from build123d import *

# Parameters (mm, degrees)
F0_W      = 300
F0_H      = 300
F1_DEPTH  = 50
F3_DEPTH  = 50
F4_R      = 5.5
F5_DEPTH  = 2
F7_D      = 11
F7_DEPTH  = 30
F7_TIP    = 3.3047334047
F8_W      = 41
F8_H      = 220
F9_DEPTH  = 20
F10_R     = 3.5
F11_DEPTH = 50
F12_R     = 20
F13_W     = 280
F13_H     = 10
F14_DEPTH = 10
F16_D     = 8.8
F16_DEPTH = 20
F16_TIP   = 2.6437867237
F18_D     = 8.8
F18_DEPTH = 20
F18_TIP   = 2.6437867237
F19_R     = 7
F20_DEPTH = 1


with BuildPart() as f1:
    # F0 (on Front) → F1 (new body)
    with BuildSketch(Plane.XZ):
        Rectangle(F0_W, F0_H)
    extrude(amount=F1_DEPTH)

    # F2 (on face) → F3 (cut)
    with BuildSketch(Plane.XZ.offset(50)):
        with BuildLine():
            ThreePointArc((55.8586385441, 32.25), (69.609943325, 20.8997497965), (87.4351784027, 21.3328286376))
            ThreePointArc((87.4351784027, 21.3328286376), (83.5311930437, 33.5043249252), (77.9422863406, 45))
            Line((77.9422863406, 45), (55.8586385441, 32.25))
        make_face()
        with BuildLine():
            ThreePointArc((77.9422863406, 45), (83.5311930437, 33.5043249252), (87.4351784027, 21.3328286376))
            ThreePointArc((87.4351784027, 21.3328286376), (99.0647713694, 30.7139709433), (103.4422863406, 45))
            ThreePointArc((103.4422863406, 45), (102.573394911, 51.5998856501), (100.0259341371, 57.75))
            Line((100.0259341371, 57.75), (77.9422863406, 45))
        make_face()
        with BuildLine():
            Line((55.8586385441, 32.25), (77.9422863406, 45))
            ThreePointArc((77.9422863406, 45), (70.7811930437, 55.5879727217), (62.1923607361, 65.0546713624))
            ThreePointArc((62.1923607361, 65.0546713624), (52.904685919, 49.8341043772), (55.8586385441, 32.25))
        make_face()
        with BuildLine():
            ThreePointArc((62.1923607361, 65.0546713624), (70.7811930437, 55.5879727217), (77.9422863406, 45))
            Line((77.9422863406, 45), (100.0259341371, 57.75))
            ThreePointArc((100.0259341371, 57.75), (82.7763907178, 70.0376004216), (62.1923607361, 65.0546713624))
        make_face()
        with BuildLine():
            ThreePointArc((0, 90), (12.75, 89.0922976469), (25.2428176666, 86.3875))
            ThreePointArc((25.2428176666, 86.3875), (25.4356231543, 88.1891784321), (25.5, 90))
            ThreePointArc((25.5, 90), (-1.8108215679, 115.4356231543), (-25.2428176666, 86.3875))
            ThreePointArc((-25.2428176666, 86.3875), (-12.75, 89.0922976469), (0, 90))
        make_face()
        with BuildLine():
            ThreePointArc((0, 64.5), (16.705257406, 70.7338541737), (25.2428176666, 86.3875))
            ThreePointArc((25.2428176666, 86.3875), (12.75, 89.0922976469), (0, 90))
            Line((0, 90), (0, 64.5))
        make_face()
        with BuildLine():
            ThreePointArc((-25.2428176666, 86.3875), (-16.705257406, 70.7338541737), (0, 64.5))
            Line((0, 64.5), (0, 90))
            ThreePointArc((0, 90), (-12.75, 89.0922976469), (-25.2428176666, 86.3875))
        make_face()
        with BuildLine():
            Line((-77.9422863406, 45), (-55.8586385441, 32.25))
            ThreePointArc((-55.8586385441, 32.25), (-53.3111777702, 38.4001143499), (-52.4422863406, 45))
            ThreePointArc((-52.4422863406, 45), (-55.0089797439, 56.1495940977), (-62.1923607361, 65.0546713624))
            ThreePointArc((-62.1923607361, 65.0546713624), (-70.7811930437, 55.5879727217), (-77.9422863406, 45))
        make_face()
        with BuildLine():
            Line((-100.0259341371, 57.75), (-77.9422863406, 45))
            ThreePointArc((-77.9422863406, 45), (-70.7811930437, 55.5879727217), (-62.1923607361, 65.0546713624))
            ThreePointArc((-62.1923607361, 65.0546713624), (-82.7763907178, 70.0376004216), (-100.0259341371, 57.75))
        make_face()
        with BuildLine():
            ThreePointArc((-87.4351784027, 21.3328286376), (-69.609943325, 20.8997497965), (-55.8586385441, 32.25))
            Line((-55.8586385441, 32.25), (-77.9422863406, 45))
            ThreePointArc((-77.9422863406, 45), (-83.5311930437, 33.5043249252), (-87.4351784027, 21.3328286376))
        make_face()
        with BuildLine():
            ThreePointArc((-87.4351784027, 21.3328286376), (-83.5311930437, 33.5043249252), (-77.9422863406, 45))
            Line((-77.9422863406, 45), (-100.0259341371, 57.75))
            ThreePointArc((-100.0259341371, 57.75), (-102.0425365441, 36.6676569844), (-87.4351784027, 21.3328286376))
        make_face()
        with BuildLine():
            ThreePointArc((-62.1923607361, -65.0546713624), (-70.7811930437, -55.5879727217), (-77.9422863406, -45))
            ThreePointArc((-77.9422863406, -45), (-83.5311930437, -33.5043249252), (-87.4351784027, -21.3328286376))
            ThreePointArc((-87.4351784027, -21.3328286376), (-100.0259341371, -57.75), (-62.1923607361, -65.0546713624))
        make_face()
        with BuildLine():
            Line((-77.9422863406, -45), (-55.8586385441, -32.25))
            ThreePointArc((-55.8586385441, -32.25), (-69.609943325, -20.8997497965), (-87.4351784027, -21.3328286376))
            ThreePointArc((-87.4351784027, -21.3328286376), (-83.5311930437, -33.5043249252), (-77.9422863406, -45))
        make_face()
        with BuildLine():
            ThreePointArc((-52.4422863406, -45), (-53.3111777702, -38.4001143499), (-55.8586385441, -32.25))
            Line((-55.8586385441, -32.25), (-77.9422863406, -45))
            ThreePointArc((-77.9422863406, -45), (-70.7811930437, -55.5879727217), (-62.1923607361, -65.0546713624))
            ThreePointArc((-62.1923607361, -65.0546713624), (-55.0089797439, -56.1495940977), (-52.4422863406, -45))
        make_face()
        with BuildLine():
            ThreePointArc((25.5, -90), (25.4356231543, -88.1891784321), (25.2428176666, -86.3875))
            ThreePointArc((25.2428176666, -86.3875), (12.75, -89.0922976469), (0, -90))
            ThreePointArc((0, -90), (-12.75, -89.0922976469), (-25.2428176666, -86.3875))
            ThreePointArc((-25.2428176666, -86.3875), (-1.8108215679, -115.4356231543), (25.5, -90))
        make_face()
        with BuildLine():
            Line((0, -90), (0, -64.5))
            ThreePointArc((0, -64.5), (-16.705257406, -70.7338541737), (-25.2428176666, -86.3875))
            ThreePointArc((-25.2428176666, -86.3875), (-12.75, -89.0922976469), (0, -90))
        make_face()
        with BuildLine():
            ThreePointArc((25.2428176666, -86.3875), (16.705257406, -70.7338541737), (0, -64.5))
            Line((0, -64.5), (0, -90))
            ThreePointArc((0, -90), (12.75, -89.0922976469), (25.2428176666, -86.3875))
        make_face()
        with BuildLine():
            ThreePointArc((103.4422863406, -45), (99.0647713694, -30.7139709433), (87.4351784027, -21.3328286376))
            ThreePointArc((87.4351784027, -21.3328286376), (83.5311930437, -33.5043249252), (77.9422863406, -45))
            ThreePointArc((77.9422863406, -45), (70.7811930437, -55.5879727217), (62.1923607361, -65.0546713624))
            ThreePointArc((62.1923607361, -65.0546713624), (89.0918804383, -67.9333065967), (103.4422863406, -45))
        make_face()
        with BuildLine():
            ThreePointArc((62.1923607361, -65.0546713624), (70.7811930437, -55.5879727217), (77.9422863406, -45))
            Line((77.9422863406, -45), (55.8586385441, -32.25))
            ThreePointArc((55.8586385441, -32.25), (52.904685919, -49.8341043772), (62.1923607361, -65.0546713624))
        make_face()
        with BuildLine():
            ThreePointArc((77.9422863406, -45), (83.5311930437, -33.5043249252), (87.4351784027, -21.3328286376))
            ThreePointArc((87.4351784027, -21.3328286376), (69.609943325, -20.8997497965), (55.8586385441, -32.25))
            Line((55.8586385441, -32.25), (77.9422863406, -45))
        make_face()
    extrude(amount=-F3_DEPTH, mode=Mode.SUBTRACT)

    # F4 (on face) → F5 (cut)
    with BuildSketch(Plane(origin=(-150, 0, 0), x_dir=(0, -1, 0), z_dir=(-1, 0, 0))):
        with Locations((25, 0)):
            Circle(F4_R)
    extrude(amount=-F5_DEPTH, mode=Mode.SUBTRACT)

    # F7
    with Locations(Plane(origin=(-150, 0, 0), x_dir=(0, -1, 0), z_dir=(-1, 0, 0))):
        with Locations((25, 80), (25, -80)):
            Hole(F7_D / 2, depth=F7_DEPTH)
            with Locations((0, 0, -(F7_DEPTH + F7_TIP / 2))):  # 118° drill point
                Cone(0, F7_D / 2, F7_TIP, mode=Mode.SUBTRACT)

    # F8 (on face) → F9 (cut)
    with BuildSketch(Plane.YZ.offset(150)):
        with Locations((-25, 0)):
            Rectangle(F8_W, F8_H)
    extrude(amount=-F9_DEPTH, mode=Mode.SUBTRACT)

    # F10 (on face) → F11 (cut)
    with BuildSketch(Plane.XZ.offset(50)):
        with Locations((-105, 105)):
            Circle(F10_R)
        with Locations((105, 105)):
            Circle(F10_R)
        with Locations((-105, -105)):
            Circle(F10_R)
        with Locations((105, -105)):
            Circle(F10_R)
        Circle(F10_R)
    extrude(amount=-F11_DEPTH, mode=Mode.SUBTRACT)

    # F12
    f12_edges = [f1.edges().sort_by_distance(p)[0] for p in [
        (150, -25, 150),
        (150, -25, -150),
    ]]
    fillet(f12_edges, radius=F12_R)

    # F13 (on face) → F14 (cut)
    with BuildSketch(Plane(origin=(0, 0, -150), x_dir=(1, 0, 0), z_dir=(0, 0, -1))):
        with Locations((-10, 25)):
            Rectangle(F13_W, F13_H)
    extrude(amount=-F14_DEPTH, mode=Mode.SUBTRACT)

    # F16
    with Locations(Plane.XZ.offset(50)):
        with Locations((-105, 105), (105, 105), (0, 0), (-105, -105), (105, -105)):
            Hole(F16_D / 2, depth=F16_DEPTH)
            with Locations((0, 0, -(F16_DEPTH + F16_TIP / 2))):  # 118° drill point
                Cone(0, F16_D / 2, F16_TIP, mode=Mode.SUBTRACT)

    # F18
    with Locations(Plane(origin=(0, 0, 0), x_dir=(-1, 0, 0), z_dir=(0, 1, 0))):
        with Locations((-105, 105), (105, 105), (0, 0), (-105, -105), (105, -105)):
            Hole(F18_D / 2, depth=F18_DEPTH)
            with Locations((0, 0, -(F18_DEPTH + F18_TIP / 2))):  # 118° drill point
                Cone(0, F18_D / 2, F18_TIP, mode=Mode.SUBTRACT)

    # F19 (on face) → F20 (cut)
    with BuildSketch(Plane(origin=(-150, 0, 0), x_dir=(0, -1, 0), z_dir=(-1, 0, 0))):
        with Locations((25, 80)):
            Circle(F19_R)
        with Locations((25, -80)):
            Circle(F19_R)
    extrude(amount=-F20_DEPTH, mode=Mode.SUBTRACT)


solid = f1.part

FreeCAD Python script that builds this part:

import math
import FreeCAD as App
import Part
import Sketcher

V = App.Vector


def edges_at(feature, points):
    """Names of the edges that pass closest to the given points."""
    edges = feature.Shape.Edges
    near = lambda p: min(range(len(edges)), key=lambda i: edges[i].distToShape(Part.Vertex(*p))[0])
    return sorted({f"Edge{near(p) + 1}" for p in points})

doc = App.newDocument("Part")
body = doc.addObject("PartDesign::Body", "Body")

# Sketch on XZ plane
sketch1 = body.newObject("Sketcher::SketchObject", "Sketch")
sketch1.AttachmentSupport = (doc.getObject("XZ_Plane"), [""])
sketch1.MapMode = "FlatFace"
sketch1.addGeometry([
    Part.LineSegment(V(-150, 150, 0), V(-150, -150, 0)),
    Part.LineSegment(V(-150, -150, 0), V(150, -150, 0)),
    Part.LineSegment(V(150, -150, 0), V(150, 150, 0)),
    Part.LineSegment(V(150, 150, 0), V(-150, 150, 0)),
], False)
sketch1.addConstraint([
    Sketcher.Constraint("Coincident", 0, 2, 1, 1),
    Sketcher.Constraint("Coincident", 1, 2, 2, 1),
    Sketcher.Constraint("Coincident", 2, 2, 3, 1),
    Sketcher.Constraint("Coincident", 3, 2, 0, 1),
    Sketcher.Constraint("Vertical", 0),
    Sketcher.Constraint("Horizontal", 1),
    Sketcher.Constraint("Vertical", 2),
    Sketcher.Constraint("Horizontal", 3),
    Sketcher.Constraint("Symmetric", 0, 2, 2, 2, -1, 1),
    Sketcher.Constraint("Equal", 3, 0),
    Sketcher.Constraint("DistanceX", 1, 1, 1, 2, 300.0),
])
pad1 = body.newObject("PartDesign::Pad", "Pad")
pad1.Profile = sketch1
pad1.Length = 50

# Sketch on XZ plane
sketch2 = body.newObject("Sketcher::SketchObject", "Sketch001")
sketch2.AttachmentSupport = (doc.getObject("XZ_Plane"), [""])
sketch2.MapMode = "FlatFace"
sketch2.AttachmentOffset = App.Placement(V(0, 0, 50), App.Rotation())
sketch2.addGeometry([
    Part.ArcOfCircle(Part.Circle(V(77.9, 45, 0), V(0, 0, 1), 25.5), math.radians(-150), math.radians(-68)),  # 0
    Part.ArcOfCircle(Part.Circle(V(77.9, 45, 0), V(0, 0, 1), 25.5), math.radians(-68), math.radians(0)),  # 1
    Part.ArcOfCircle(Part.Circle(V(77.9, 45, 0), V(0, 0, 1), 25.5), math.radians(0), math.radians(30)),  # 2
    Part.ArcOfCircle(Part.Circle(V(77.9, 45, 0), V(0, 0, 1), 25.5), math.radians(30), math.radians(128)),  # 3
    Part.ArcOfCircle(Part.Circle(V(77.9, 45, 0), V(0, 0, 1), 25.5), math.radians(128), math.radians(210)),  # 4
    Part.ArcOfCircle(Part.Circle(V(0, 90, 0), V(0, 0, 1), 25.5), math.radians(-8.14), math.radians(0)),  # 5
    Part.ArcOfCircle(Part.Circle(V(0, 90, 0), V(0, 0, 1), 25.5), math.radians(0), math.radians(188)),  # 6
    Part.ArcOfCircle(Part.Circle(V(0, 90, 0), V(0, 0, 1), 25.5), math.radians(-172), math.radians(-90)),  # 7
    Part.ArcOfCircle(Part.Circle(V(0, 90, 0), V(0, 0, 1), 25.5), math.radians(-90), math.radians(-8)),  # 8
    Part.ArcOfCircle(Part.Circle(V(-77.9, 45, 0), V(0, 0, 1), 25.5), math.radians(-30), math.radians(0)),  # 9
    Part.ArcOfCircle(Part.Circle(V(-77.9, 45, 0), V(0, 0, 1), 25.5), math.radians(0), math.radians(52)),  # 10
    Part.ArcOfCircle(Part.Circle(V(-77.9, 45, 0), V(0, 0, 1), 25.5), math.radians(52), math.radians(150)),  # 11
    Part.ArcOfCircle(Part.Circle(V(-77.9, 45, 0), V(0, 0, 1), 25.5), math.radians(150), math.radians(248)),  # 12
    Part.ArcOfCircle(Part.Circle(V(-77.9, 45, 0), V(0, 0, 1), 25.5), math.radians(-112), math.radians(-30)),  # 13
    Part.ArcOfCircle(Part.Circle(V(-77.9, -45, 0), V(0, 0, 1), 25.5), math.radians(30), math.radians(112)),  # 14
    Part.ArcOfCircle(Part.Circle(V(-77.9, -45, 0), V(0, 0, 1), 25.5), math.radians(112), math.radians(308)),  # 15
    Part.ArcOfCircle(Part.Circle(V(-77.9, -45, 0), V(0, 0, 1), 25.5), math.radians(-52), math.radians(0)),  # 16
    Part.ArcOfCircle(Part.Circle(V(-77.9, -45, 0), V(0, 0, 1), 25.5), math.radians(0), math.radians(30)),  # 17
    Part.ArcOfCircle(Part.Circle(V(0, -90, 0), V(0, 0, 1), 25.5), math.radians(0), math.radians(8.14)),  # 18
    Part.ArcOfCircle(Part.Circle(V(0, -90, 0), V(0, 0, 1), 25.5), math.radians(8), math.radians(90)),  # 19
    Part.ArcOfCircle(Part.Circle(V(0, -90, 0), V(0, 0, 1), 25.5), math.radians(90), math.radians(172)),  # 20
    Part.ArcOfCircle(Part.Circle(V(0, -90, 0), V(0, 0, 1), 25.5), math.radians(172), math.radians(360)),  # 21
    Part.ArcOfCircle(Part.Circle(V(77.9, -45, 0), V(0, 0, 1), 25.5), math.radians(0), math.radians(68)),  # 22
    Part.ArcOfCircle(Part.Circle(V(77.9, -45, 0), V(0, 0, 1), 25.5), math.radians(68), math.radians(150)),  # 23
    Part.ArcOfCircle(Part.Circle(V(77.9, -45, 0), V(0, 0, 1), 25.5), math.radians(150), math.radians(232)),  # 24
    Part.ArcOfCircle(Part.Circle(V(77.9, -45, 0), V(0, 0, 1), 25.5), math.radians(-128), math.radians(0)),  # 25
], False)
sketch2.addConstraint([
    Sketcher.Constraint("Tangent", 0, 2, 1, 1),
    Sketcher.Constraint("Tangent", 1, 2, 2, 1),
    Sketcher.Constraint("Tangent", 2, 2, 3, 1),
    Sketcher.Constraint("Tangent", 3, 2, 4, 1),
    Sketcher.Constraint("Tangent", 4, 2, 0, 1),
    Sketcher.Constraint("Tangent", 5, 2, 6, 1),
    Sketcher.Constraint("Tangent", 6, 2, 7, 1),
    Sketcher.Constraint("Tangent", 7, 2, 8, 1),
    Sketcher.Constraint("Tangent", 8, 2, 5, 1),
    Sketcher.Constraint("Tangent", 9, 2, 10, 1),
    Sketcher.Constraint("Tangent", 10, 2, 11, 1),
    Sketcher.Constraint("Tangent", 11, 2, 12, 1),
    Sketcher.Constraint("Tangent", 12, 2, 13, 1),
    Sketcher.Constraint("Tangent", 13, 2, 9, 1),
    Sketcher.Constraint("Tangent", 14, 2, 15, 1),
    Sketcher.Constraint("Tangent", 15, 2, 16, 1),
    Sketcher.Constraint("Tangent", 16, 2, 17, 1),
    Sketcher.Constraint("Tangent", 17, 2, 14, 1),
    Sketcher.Constraint("Tangent", 18, 2, 19, 1),
    Sketcher.Constraint("Tangent", 19, 2, 20, 1),
    Sketcher.Constraint("Tangent", 20, 2, 21, 1),
    Sketcher.Constraint("Tangent", 21, 2, 18, 1),
    Sketcher.Constraint("Tangent", 22, 2, 23, 1),
    Sketcher.Constraint("Tangent", 23, 2, 24, 1),
    Sketcher.Constraint("Tangent", 24, 2, 25, 1),
    Sketcher.Constraint("Tangent", 25, 2, 22, 1),
    Sketcher.Constraint("Coincident", 2, 3, 0, 3),
    Sketcher.Constraint("Coincident", 11, 3, 9, 3),
    Sketcher.Constraint("Equal", 4, 5),
    Sketcher.Constraint("Equal", 5, 6),
    Sketcher.Constraint("Equal", 8, 9),
    Sketcher.Constraint("Equal", 13, 14),
    Sketcher.Constraint("Equal", 14, 15),
    Sketcher.Constraint("Equal", 17, 18),
    Sketcher.Constraint("Equal", 18, 19),
    Sketcher.Constraint("Equal", 21, 22),
    Sketcher.Constraint("Equal", 22, 23),
    Sketcher.Constraint("Symmetric", 0, 3, 14, 3, -1, 1),
    Sketcher.Constraint("Symmetric", 5, 3, 18, 3, -1, 1),
    Sketcher.Constraint("Symmetric", 9, 3, 22, 3, -1, 1),
    Sketcher.Constraint("Symmetric", 0, 3, 9, 3, -2),
    Sketcher.Constraint("Symmetric", 6, 2, 8, 2, -2),
    Sketcher.Constraint("PointOnObject", 7, 2, -2),
    Sketcher.Constraint("PointOnObject", 19, 2, -2),
    Sketcher.Constraint("Horizontal", 13, 3, 1, 2),
    Sketcher.Constraint("Horizontal", 8, 3, 5, 2),
    Sketcher.Constraint("Horizontal", 1, 2, 9, 2),
    Sketcher.Constraint("Horizontal", 3, 2, 10, 2),
    Sketcher.Constraint("Horizontal", 2, 2, 11, 2),
    Sketcher.Constraint("Horizontal", 0, 2, 12, 2),
    Sketcher.Constraint("Horizontal", 4, 2, 13, 2),
    Sketcher.Constraint("Horizontal", 25, 3, 16, 2),
    Sketcher.Constraint("Horizontal", 18, 2, 20, 2),
    Sketcher.Constraint("Horizontal", 20, 3, 21, 2),
    Sketcher.Constraint("Horizontal", 14, 2, 22, 2),
    Sketcher.Constraint("Horizontal", 17, 2, 23, 2),
    Sketcher.Constraint("Horizontal", 15, 2, 24, 2),
    Sketcher.Constraint("Horizontal", 16, 2, 25, 2),
    Sketcher.Constraint("Vertical", 12, 2, 14, 2),
    Sketcher.Constraint("Vertical", 10, 2, 15, 2),
    Sketcher.Constraint("Vertical", 13, 2, 17, 2),
    Sketcher.Constraint("Vertical", 8, 2, 18, 2),
    Sketcher.Constraint("Radius", 0, 25.5),
    Sketcher.Constraint("DistanceY", -1, 1, 0, 3, 45.0),
    Sketcher.Constraint("DistanceY", -1, 1, 5, 3, 90.0),
    Sketcher.Constraint("DistanceY", -1, 1, 2, 2, 57.75),
    Sketcher.Constraint("DistanceY", -1, 1, 4, 2, 32.25),
    Sketcher.Constraint("DistanceY", -1, 1, 6, 2, 86.3875),
    Sketcher.Constraint("DistanceX", -1, 1, 0, 2, 87.435178),
    Sketcher.Constraint("DistanceY", -1, 1, 0, 2, 21.332829),
    Sketcher.Constraint("DistanceX", -1, 1, 3, 2, 62.192361),
])
pocket1 = body.newObject("PartDesign::Pocket", "Pocket")
pocket1.Profile = sketch2
pocket1.Length = 50

# Sketch on YZ plane
sketch3 = body.newObject("Sketcher::SketchObject", "Sketch002")
sketch3.AttachmentSupport = (doc.getObject("YZ_Plane"), [""])
sketch3.MapMode = "FlatFace"
sketch3.AttachmentOffset = App.Placement(V(0, 0, -150), App.Rotation())
sketch3.addGeometry(Part.Circle(V(-25, 0, 0), V(0, 0, 1), 6), False)
sketch3.addConstraint([
    Sketcher.Constraint("PointOnObject", 0, 3, -1),
    Sketcher.Constraint("Diameter", 0, 11.0),
    Sketcher.Constraint("DistanceX", 0, 3, -1, 1, 25.0),
])
pocket2 = body.newObject("PartDesign::Pocket", "Pocket001")
pocket2.Profile = sketch3
pocket2.Length = 2
pocket2.Reversed = True

# Sketch on YZ plane
sketch4 = body.newObject("Sketcher::SketchObject", "Sketch003")
sketch4.AttachmentSupport = (doc.getObject("YZ_Plane"), [""])
sketch4.MapMode = "FlatFace"
sketch4.AttachmentOffset = App.Placement(V(0, 0, -150), App.Rotation())
sketch4.addGeometry([
    Part.Circle(V(-25, 80, 0), V(0, 0, 1), 6),
    Part.Circle(V(-25, -80, 0), V(0, 0, 1), 6),
], False)
sketch4.addConstraint([
    Sketcher.Constraint("Equal", 0, 1),
    Sketcher.Constraint("Symmetric", 0, 3, 1, 3, -1),
    Sketcher.Constraint("Diameter", 0, 11.0),
    Sketcher.Constraint("DistanceX", 0, 3, -1, 1, 25.0),
    Sketcher.Constraint("DistanceY", -1, 1, 0, 3, 80.0),
])
doc.recompute()
hole = body.newObject("PartDesign::Hole", "Hole")
hole.Profile = sketch4
hole.ThreadType = "None"
hole.Diameter = 11
hole.DepthType = "Dimension"
hole.Depth = 30
hole.DrillPoint = "Angled"
hole.DrillPointAngle = 118
hole.Reversed = True

# Sketch on YZ plane
sketch5 = body.newObject("Sketcher::SketchObject", "Sketch004")
sketch5.AttachmentSupport = (doc.getObject("YZ_Plane"), [""])
sketch5.MapMode = "FlatFace"
sketch5.AttachmentOffset = App.Placement(V(0, 0, 150), App.Rotation())
sketch5.addGeometry([
    Part.LineSegment(V(-46, 110, 0), V(-46, -110, 0)),
    Part.LineSegment(V(-46, -110, 0), V(-4, -110, 0)),
    Part.LineSegment(V(-4, -110, 0), V(-4, 110, 0)),
    Part.LineSegment(V(-4, 110, 0), V(-46, 110, 0)),
], False)
sketch5.addConstraint([
    Sketcher.Constraint("Coincident", 0, 2, 1, 1),
    Sketcher.Constraint("Coincident", 1, 2, 2, 1),
    Sketcher.Constraint("Coincident", 2, 2, 3, 1),
    Sketcher.Constraint("Coincident", 3, 2, 0, 1),
    Sketcher.Constraint("Vertical", 0),
    Sketcher.Constraint("Horizontal", 1),
    Sketcher.Constraint("Vertical", 2),
    Sketcher.Constraint("Horizontal", 3),
    Sketcher.Constraint("DistanceX", 1, 1, 1, 2, 41.0),
    Sketcher.Constraint("DistanceY", 0, 2, 0, 1, 220.0),
    Sketcher.Constraint("DistanceY", 0, 2, -1, 1, 110.0),
    Sketcher.Constraint("DistanceX", 0, 2, -1, 1, 45.5),
])
pocket3 = body.newObject("PartDesign::Pocket", "Pocket002")
pocket3.Profile = sketch5
pocket3.Length = 20

# Sketch on XZ plane
sketch6 = body.newObject("Sketcher::SketchObject", "Sketch005")
sketch6.AttachmentSupport = (doc.getObject("XZ_Plane"), [""])
sketch6.MapMode = "FlatFace"
sketch6.AttachmentOffset = App.Placement(V(0, 0, 50), App.Rotation())
sketch6.addGeometry([
    Part.Circle(V(-105, 105, 0), V(0, 0, 1), 3.5),  # 0
    Part.Circle(V(105, 105, 0), V(0, 0, 1), 3.5),  # 1
    Part.Circle(V(-105, -105, 0), V(0, 0, 1), 3.5),  # 2
    Part.Circle(V(105, -105, 0), V(0, 0, 1), 3.5),  # 3
    Part.Circle(V(0, 0, 0), V(0, 0, 1), 3.5),  # 4
], False)
sketch6.addConstraint([
    Sketcher.Constraint("Coincident", 4, 3, -1, 1),
    Sketcher.Constraint("Equal", 0, 1),
    Sketcher.Constraint("Equal", 1, 2),
    Sketcher.Constraint("Equal", 2, 3),
    Sketcher.Constraint("Equal", 3, 4),
    Sketcher.Constraint("Symmetric", 1, 3, 2, 3, -1, 1),
    Sketcher.Constraint("Symmetric", 0, 3, 3, 3, -1, 1),
    Sketcher.Constraint("Symmetric", 0, 3, 1, 3, -2),
    Sketcher.Constraint("Diameter", 0, 7.0),
    Sketcher.Constraint("DistanceX", 0, 3, -1, 1, 105.0),
    Sketcher.Constraint("DistanceY", -1, 1, 0, 3, 105.0),
])
pocket4 = body.newObject("PartDesign::Pocket", "Pocket003")
pocket4.Profile = sketch6
pocket4.Length = 50
doc.recompute()

fillet = body.newObject("PartDesign::Fillet", "Fillet")
fillet.Base = (pocket4, edges_at(pocket4, [(150, -25, 150), (150, -25, -150)]))
fillet.Radius = 20

# Sketch on XY plane
sketch7 = body.newObject("Sketcher::SketchObject", "Sketch006")
sketch7.AttachmentSupport = (doc.getObject("XY_Plane"), [""])
sketch7.MapMode = "FlatFace"
sketch7.AttachmentOffset = App.Placement(V(0, 0, -150), App.Rotation())
sketch7.addGeometry([
    Part.LineSegment(V(-150, -30, 0), V(-150, -20, 0)),
    Part.LineSegment(V(-150, -20, 0), V(130, -20, 0)),
    Part.LineSegment(V(130, -20, 0), V(130, -30, 0)),
    Part.LineSegment(V(130, -30, 0), V(-150, -30, 0)),
], False)
sketch7.addConstraint([
    Sketcher.Constraint("Coincident", 0, 2, 1, 1),
    Sketcher.Constraint("Coincident", 1, 2, 2, 1),
    Sketcher.Constraint("Coincident", 2, 2, 3, 1),
    Sketcher.Constraint("Coincident", 3, 2, 0, 1),
    Sketcher.Constraint("Vertical", 0),
    Sketcher.Constraint("Horizontal", 1),
    Sketcher.Constraint("Vertical", 2),
    Sketcher.Constraint("Horizontal", 3),
    Sketcher.Constraint("DistanceX", 1, 1, 1, 2, 280.0),
    Sketcher.Constraint("DistanceY", 0, 1, 0, 2, 10.0),
    Sketcher.Constraint("DistanceX", 0, 2, -1, 1, 150.0),
    Sketcher.Constraint("DistanceY", 0, 2, -1, 1, 20.0),
])
pocket5 = body.newObject("PartDesign::Pocket", "Pocket004")
pocket5.Profile = sketch7
pocket5.Length = 10
pocket5.Reversed = True

# Sketch on XZ plane
sketch8 = body.newObject("Sketcher::SketchObject", "Sketch007")
sketch8.AttachmentSupport = (doc.getObject("XZ_Plane"), [""])
sketch8.MapMode = "FlatFace"
sketch8.AttachmentOffset = App.Placement(V(0, 0, 50), App.Rotation())
sketch8.addGeometry([
    Part.Circle(V(-105, 105, 0), V(0, 0, 1), 4.4),  # 0
    Part.Circle(V(105, 105, 0), V(0, 0, 1), 4.4),  # 1
    Part.Circle(V(0, 0, 0), V(0, 0, 1), 4.4),  # 2
    Part.Circle(V(-105, -105, 0), V(0, 0, 1), 4.4),  # 3
    Part.Circle(V(105, -105, 0), V(0, 0, 1), 4.4),  # 4
], False)
sketch8.addConstraint([
    Sketcher.Constraint("Coincident", 2, 3, -1, 1),
    Sketcher.Constraint("Equal", 0, 1),
    Sketcher.Constraint("Equal", 1, 2),
    Sketcher.Constraint("Equal", 2, 3),
    Sketcher.Constraint("Equal", 3, 4),
    Sketcher.Constraint("Symmetric", 1, 3, 3, 3, -1, 1),
    Sketcher.Constraint("Symmetric", 0, 3, 4, 3, -1, 1),
    Sketcher.Constraint("Symmetric", 0, 3, 1, 3, -2),
    Sketcher.Constraint("Diameter", 0, 8.8),
    Sketcher.Constraint("DistanceX", 0, 3, -1, 1, 105.0),
    Sketcher.Constraint("DistanceY", -1, 1, 0, 3, 105.0),
])
doc.recompute()
hole2 = body.newObject("PartDesign::Hole", "Hole001")
hole2.Profile = sketch8
hole2.ThreadType = "None"
hole2.Diameter = 8.8
hole2.DepthType = "Dimension"
hole2.Depth = 20
hole2.DrillPoint = "Angled"
hole2.DrillPointAngle = 118

# Sketch on XZ plane
sketch9 = body.newObject("Sketcher::SketchObject", "Sketch008")
sketch9.AttachmentSupport = (doc.getObject("XZ_Plane"), [""])
sketch9.MapMode = "FlatFace"
sketch9.addGeometry([
    Part.Circle(V(105, 105, 0), V(0, 0, 1), 4.4),  # 0
    Part.Circle(V(-105, 105, 0), V(0, 0, 1), 4.4),  # 1
    Part.Circle(V(0, 0, 0), V(0, 0, 1), 4.4),  # 2
    Part.Circle(V(105, -105, 0), V(0, 0, 1), 4.4),  # 3
    Part.Circle(V(-105, -105, 0), V(0, 0, 1), 4.4),  # 4
], False)
sketch9.addConstraint([
    Sketcher.Constraint("Coincident", 2, 3, -1, 1),
    Sketcher.Constraint("Equal", 0, 1),
    Sketcher.Constraint("Equal", 1, 2),
    Sketcher.Constraint("Equal", 2, 3),
    Sketcher.Constraint("Equal", 3, 4),
    Sketcher.Constraint("Symmetric", 1, 3, 3, 3, -1, 1),
    Sketcher.Constraint("Symmetric", 0, 3, 4, 3, -1, 1),
    Sketcher.Constraint("Symmetric", 0, 3, 1, 3, -2),
    Sketcher.Constraint("Diameter", 0, 8.8),
    Sketcher.Constraint("DistanceX", -1, 1, 0, 3, 105.0),
    Sketcher.Constraint("DistanceY", -1, 1, 0, 3, 105.0),
])
doc.recompute()
hole3 = body.newObject("PartDesign::Hole", "Hole002")
hole3.Profile = sketch9
hole3.ThreadType = "None"
hole3.Diameter = 8.8
hole3.DepthType = "Dimension"
hole3.Depth = 20
hole3.DrillPoint = "Angled"
hole3.DrillPointAngle = 118
hole3.Reversed = True

# Sketch on YZ plane
sketch10 = body.newObject("Sketcher::SketchObject", "Sketch009")
sketch10.AttachmentSupport = (doc.getObject("YZ_Plane"), [""])
sketch10.MapMode = "FlatFace"
sketch10.AttachmentOffset = App.Placement(V(0, 0, -150), App.Rotation())
sketch10.addGeometry([
    Part.Circle(V(-25, 80, 0), V(0, 0, 1), 7),
    Part.Circle(V(-25, -80, 0), V(0, 0, 1), 7),
], False)
sketch10.addConstraint([
    Sketcher.Constraint("Equal", 0, 1),
    Sketcher.Constraint("Symmetric", 0, 3, 1, 3, -1),
    Sketcher.Constraint("Diameter", 0, 14.0),
    Sketcher.Constraint("DistanceX", 0, 3, -1, 1, 25.0),
    Sketcher.Constraint("DistanceY", -1, 1, 0, 3, 80.0),
])
pocket6 = body.newObject("PartDesign::Pocket", "Pocket005")
pocket6.Profile = sketch10
pocket6.Length = 1
pocket6.Reversed = True

doc.recompute()
